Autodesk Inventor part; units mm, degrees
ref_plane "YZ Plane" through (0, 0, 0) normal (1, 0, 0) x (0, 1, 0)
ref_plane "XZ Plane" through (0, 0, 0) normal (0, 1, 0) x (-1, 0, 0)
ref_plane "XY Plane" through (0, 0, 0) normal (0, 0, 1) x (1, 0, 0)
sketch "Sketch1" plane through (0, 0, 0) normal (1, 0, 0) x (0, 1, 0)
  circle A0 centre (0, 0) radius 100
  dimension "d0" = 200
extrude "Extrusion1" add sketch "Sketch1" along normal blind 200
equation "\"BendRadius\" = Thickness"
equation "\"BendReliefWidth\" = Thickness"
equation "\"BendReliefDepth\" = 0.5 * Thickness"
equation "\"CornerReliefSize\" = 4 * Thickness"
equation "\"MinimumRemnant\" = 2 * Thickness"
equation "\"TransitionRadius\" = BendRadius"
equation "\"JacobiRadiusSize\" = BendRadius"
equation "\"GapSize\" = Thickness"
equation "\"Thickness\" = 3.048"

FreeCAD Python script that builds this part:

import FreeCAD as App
import Part
import Sketcher
from FreeCAD import Vector

doc = App.newDocument("Part")
params = doc.addObject("Spreadsheet::Sheet", "Params")
for row, (alias, value) in enumerate([
    ("sketch1_diameter", "200 mm"),
    ("pad1_length", "200 mm"),
], start=1):
    params.set(f"A{row}", alias)
    params.set(f"B{row}", "=" + value)
    params.setAlias(f"B{row}", alias)

body = doc.addObject("PartDesign::Body", "Body")

# Sketch on YZ plane
sketch1 = doc.addObject("Sketcher::SketchObject", "Sketch")
body.addObject(sketch1)
sketch1.AttachmentSupport = (doc.YZ_Plane, [""])
sketch1.MapMode = "FlatFace"
sketch1.addGeometry(Part.Circle(Vector(0, 0, 0), Vector(0, 0, 1), 100), False)
sketch1.addConstraint([
    Sketcher.Constraint("Coincident", 0, 3, -1, 1),
    Sketcher.Constraint("Diameter", 0, 200.0),
])
sketch1.setExpression("Constraints[1]", "Params.sketch1_diameter")
pad1 = doc.addObject("PartDesign::Pad", "Pad")
body.addObject(pad1)
pad1.Profile = sketch1
pad1.setExpression("Length", "Params.pad1_length")

doc.recompute()
